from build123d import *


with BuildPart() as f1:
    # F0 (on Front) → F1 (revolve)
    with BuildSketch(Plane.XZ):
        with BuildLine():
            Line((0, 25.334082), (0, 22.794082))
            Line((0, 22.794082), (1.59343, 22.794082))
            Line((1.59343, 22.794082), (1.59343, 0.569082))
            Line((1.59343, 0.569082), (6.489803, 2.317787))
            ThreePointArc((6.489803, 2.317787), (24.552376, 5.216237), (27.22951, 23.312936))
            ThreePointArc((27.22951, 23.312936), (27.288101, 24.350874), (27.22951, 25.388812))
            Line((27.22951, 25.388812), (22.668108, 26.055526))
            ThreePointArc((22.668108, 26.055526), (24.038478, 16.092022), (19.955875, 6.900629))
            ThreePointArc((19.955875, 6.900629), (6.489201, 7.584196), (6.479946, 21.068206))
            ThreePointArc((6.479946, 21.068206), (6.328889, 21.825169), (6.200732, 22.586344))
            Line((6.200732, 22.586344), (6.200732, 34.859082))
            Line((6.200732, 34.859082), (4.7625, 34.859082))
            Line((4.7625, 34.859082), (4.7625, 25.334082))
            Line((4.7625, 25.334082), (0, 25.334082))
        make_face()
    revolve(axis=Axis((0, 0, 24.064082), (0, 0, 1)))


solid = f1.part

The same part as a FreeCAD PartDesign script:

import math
import FreeCAD as App
import Part
import Sketcher
from FreeCAD import Vector
Q = App.Units.Quantity

doc = App.newDocument("Part")
body = doc.addObject("PartDesign::Body", "Body")

# Sketch on XZ plane
sketch1 = body.newObject("Sketcher::SketchObject", "Sketch")
sketch1.AttachmentSupport = (doc.getObject("XZ_Plane"), [""])
sketch1.MapMode = "FlatFace"
sketch1.addGeometry(Part.LineSegment(Vector(0, 25.3, 0), Vector(0, 22.8, 0)), False)
sketch1.addGeometry(Part.LineSegment(Vector(0, 22.8, 0), Vector(1.6, 22.8, 0)), False)
sketch1.addGeometry(Part.LineSegment(Vector(1.6, 22.8, 0), Vector(1.6, 0.6, 0)), False)
sketch1.addGeometry(Part.LineSegment(Vector(1.6, 0.6, 0), Vector(6.5, 2.3, 0)), False)
sketch1.addGeometry(Part.ArcOfCircle(Part.Circle(Vector(13.5, 16.1, 0), Vector(0, 0, 1), 15.5), math.radians(-117), math.radians(28)), False)
sketch1.addGeometry(Part.ArcOfCircle(Part.Circle(Vector(18.1, 24.4, 0), Vector(0, 0, 1), 9.2), math.radians(-6.46), math.radians(6.46)), False)
sketch1.addGeometry(Part.LineSegment(Vector(27.2, 25.4, 0), Vector(22.7, 26.1, 0)), False)
sketch1.addGeometry(Part.ArcOfCircle(Part.Circle(Vector(5.9, 18.7, 0), Vector(0, 0, 1), 18.4), math.radians(-40), math.radians(24)), False)
sketch1.addGeometry(Part.ArcOfCircle(Part.Circle(Vector(13.6, 14.3, 0), Vector(0, 0, 1), 9.8), math.radians(137), math.radians(311)), False)
sketch1.addGeometry(Part.ArcOfCircle(Part.Circle(Vector(31.5, 26.5, 0), Vector(0, 0, 1), 25.6), math.radians(-171.31), math.radians(-167.85)), False)
sketch1.addGeometry(Part.LineSegment(Vector(6.2, 22.6, 0), Vector(6.2, 34.9, 0)), False)
sketch1.addGeometry(Part.LineSegment(Vector(6.2, 34.9, 0), Vector(4.8, 34.9, 0)), False)
sketch1.addGeometry(Part.LineSegment(Vector(4.8, 34.9, 0), Vector(4.8, 25.3, 0)), False)
sketch1.addGeometry(Part.LineSegment(Vector(4.8, 25.3, 0), Vector(0, 25.3, 0)), False)
sketch1.addConstraint(Sketcher.Constraint("Coincident", 0, 2, 1, 1))
sketch1.addConstraint(Sketcher.Constraint("Coincident", 1, 2, 2, 1))
sketch1.addConstraint(Sketcher.Constraint("Coincident", 2, 2, 3, 1))
sketch1.addConstraint(Sketcher.Constraint("Coincident", 3, 2, 4, 1))
sketch1.addConstraint(Sketcher.Constraint("Coincident", 4, 2, 5, 1))
sketch1.addConstraint(Sketcher.Constraint("Coincident", 5, 2, 6, 1))
sketch1.addConstraint(Sketcher.Constraint("Coincident", 6, 2, 7, 2))
sketch1.addConstraint(Sketcher.Constraint("Coincident", 7, 1, 8, 2))
sketch1.addConstraint(Sketcher.Constraint("Coincident", 8, 1, 9, 2))
sketch1.addConstraint(Sketcher.Constraint("Coincident", 9, 1, 10, 1))
sketch1.addConstraint(Sketcher.Constraint("Coincident", 10, 2, 11, 1))
sketch1.addConstraint(Sketcher.Constraint("Coincident", 11, 2, 12, 1))
sketch1.addConstraint(Sketcher.Constraint("Coincident", 12, 2, 13, 1))
sketch1.addConstraint(Sketcher.Constraint("Coincident", 13, 2, 0, 1))
sketch1.addConstraint(Sketcher.Constraint("Vertical", 0))
sketch1.addConstraint(Sketcher.Constraint("Horizontal", 1))
sketch1.addConstraint(Sketcher.Constraint("Vertical", 2))
sketch1.addConstraint(Sketcher.Constraint("Vertical", 10))
sketch1.addConstraint(Sketcher.Constraint("Horizontal", 11))
sketch1.addConstraint(Sketcher.Constraint("Vertical", 12))
sketch1.addConstraint(Sketcher.Constraint("Horizontal", 13))
sketch1.addConstraint(Sketcher.Constraint("PointOnObject", 0, 2, -2))
sketch1.addConstraint(Sketcher.Constraint("Vertical", 4, 2, 5, 2))
sketch1.addConstraint(Sketcher.Constraint("DistanceY", 0, 2, 0, 1, Q("0.1 in")))
sketch1.addConstraint(Sketcher.Constraint("DistanceX", 13, 2, 13, 1, Q("0.1875 in")))
sketch1.addConstraint(Sketcher.Constraint("DistanceY", 2, 2, 2, 1, Q("0.875 in")))
sketch1.addConstraint(Sketcher.Constraint("DistanceY", 12, 2, 12, 1, Q("0.375 in")))
sketch1.addConstraint(Sketcher.Constraint("Radius", 9, 25.588728))
sketch1.addConstraint(Sketcher.Constraint("Radius", 4, 15.474536))
sketch1.addConstraint(Sketcher.Constraint("Radius", 5, 9.222817))
sketch1.addConstraint(Sketcher.Constraint("Radius", 7, 18.366195))
sketch1.addConstraint(Sketcher.Constraint("Radius", 8, 9.789444))
sketch1.addConstraint(Sketcher.Constraint("DistanceX", 1, 1, 1, 2, 1.59343))
sketch1.addConstraint(Sketcher.Constraint("DistanceY", 8, 3, 5, 3, 10.019801))
sketch1.addConstraint(Sketcher.Constraint("DistanceY", 0, 2, 9, 3, 3.6597))
sketch1.addConstraint(Sketcher.Constraint("DistanceY", 4, 3, 5, 2, 9.297601))
sketch1.addConstraint(Sketcher.Constraint("DistanceX", 6, 2, 5, 2, 4.561402))
sketch1.addConstraint(Sketcher.Constraint("DistanceX", 1, 2, 9, 1, 4.607302))
sketch1.addConstraint(Sketcher.Constraint("Distance", 6, 4.609869))
sketch1.addConstraint(Sketcher.Constraint("DistanceY", 10, 1, 10, 2, 12.272738))
sketch1.addConstraint(Sketcher.Constraint("DistanceX", -1, 1, 4, 3, 13.54346))
sketch1.addConstraint(Sketcher.Constraint("DistanceY", -1, 1, 4, 3, 16.091211))
sketch1.addConstraint(Sketcher.Constraint("DistanceY", -1, 1, 0, 2, 22.794082))
sketch1.addConstraint(Sketcher.Constraint("DistanceX", -1, 1, 4, 2, 27.22951))
sketch1.addConstraint(Sketcher.Constraint("DistanceY", -1, 1, 7, 1, 6.900629))
sketch1.addConstraint(Sketcher.Constraint("DistanceX", 7, 3, 5, 3, 12.211611))
sketch1.addConstraint(Sketcher.Constraint("DistanceX", 7, 3, 3, 2, 0.63613))
revolution = body.newObject("PartDesign::Revolution", "Revolution")
revolution.Profile = sketch1
revolution.ReferenceAxis = (sketch1, ["V_Axis"])
revolution.Angle = 360

doc.recompute()
